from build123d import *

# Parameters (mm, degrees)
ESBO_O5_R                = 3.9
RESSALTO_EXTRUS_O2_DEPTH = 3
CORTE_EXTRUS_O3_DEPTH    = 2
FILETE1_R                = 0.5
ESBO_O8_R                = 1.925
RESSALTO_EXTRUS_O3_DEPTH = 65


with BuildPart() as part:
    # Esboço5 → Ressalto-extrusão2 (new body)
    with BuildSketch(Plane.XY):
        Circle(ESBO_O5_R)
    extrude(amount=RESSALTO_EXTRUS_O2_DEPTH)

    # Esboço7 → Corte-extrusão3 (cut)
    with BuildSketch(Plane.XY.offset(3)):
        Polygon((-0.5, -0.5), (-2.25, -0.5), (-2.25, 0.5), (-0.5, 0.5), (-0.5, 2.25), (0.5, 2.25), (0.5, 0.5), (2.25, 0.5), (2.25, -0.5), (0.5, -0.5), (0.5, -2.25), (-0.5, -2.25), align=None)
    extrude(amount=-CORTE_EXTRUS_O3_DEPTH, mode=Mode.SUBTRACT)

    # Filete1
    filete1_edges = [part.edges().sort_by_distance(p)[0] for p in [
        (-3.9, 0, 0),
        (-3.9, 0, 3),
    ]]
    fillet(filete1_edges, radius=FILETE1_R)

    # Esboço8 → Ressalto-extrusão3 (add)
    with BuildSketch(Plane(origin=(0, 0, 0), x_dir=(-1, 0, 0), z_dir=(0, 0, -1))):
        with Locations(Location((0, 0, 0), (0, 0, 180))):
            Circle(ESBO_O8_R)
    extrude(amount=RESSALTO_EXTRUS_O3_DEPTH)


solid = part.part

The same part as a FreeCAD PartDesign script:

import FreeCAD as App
import Part
import Sketcher


def edges_at(feature, points):
    """Names of the edges that pass closest to the given points."""
    edges = feature.Shape.Edges
    near = lambda p: min(range(len(edges)), key=lambda i: edges[i].distToShape(Part.Vertex(*p))[0])
    return sorted({f"Edge{near(p) + 1}" for p in points})


def add_polygon(sketch, points):
    """Adds a closed chain of lines whose ends are joined by coincident constraints."""
    first, n = sketch.GeometryCount, len(points)
    for a, b in zip(points, points[1:] + points[:1]):
        sketch.addGeometry(Part.LineSegment(App.Vector(*a, 0), App.Vector(*b, 0)), False)
    for i in range(n):
        sketch.addConstraint(Sketcher.Constraint("Coincident", first + i, 2, first + (i + 1) % n, 1))

doc = App.newDocument("Part")
body = doc.addObject("PartDesign::Body", "Body")

# Sketch on XY plane
sketch1 = body.newObject("Sketcher::SketchObject", "Sketch")
sketch1.AttachmentSupport = (doc.getObject("XY_Plane"), [""])
sketch1.MapMode = "FlatFace"
sketch1.addGeometry(Part.Circle(App.Vector(0, 0, 0), App.Vector(0, 0, 1), 3.9), False)
sketch1.addConstraint([
    Sketcher.Constraint("Coincident", 0, 3, -1, 1),
    Sketcher.Constraint("Diameter", 0, 7.8),
])
pad1 = body.newObject("PartDesign::Pad", "Pad")
pad1.Profile = sketch1
pad1.Length = 3

# Sketch on XY plane
sketch2 = body.newObject("Sketcher::SketchObject", "Sketch001")
sketch2.AttachmentSupport = (doc.getObject("XY_Plane"), [""])
sketch2.MapMode = "FlatFace"
sketch2.AttachmentOffset = App.Placement(App.Vector(0, 0, 3), App.Rotation())
add_polygon(sketch2, [(-2.2, -0.5), (-0.5, -0.5), (-0.5, -2.2), (0.5, -2.2), (0.5, -0.5), (2.2, -0.5), (2.2, 0.5), (0.5, 0.5), (0.5, 2.2), (-0.5, 2.2), (-0.5, 0.5), (-2.2, 0.5)])  # lines 0-11
sketch2.addConstraint([
    Sketcher.Constraint("Horizontal", 0),
    Sketcher.Constraint("Vertical", 1),
    Sketcher.Constraint("Horizontal", 2),
    Sketcher.Constraint("Vertical", 3),
    Sketcher.Constraint("Horizontal", 4),
    Sketcher.Constraint("Vertical", 5),
    Sketcher.Constraint("Horizontal", 6),
    Sketcher.Constraint("Vertical", 7),
    Sketcher.Constraint("Horizontal", 8),
    Sketcher.Constraint("Vertical", 9),
    Sketcher.Constraint("Horizontal", 10),
    Sketcher.Constraint("Vertical", 11),
    Sketcher.Constraint("Symmetric", 0, 2, 6, 2, -1, 1),
    Sketcher.Constraint("Symmetric", 2, 2, 8, 2, -1, 1),
    Sketcher.Constraint("Symmetric", 4, 2, 10, 2, -1, 1),
    Sketcher.Constraint("Symmetric", 0, 2, 3, 2, -2),
    Sketcher.Constraint("Equal", 10, 1),
    Sketcher.Constraint("Equal", 8, 5),
    Sketcher.Constraint("DistanceX", 2, 1, 2, 2, 1.0),
    Sketcher.Constraint("DistanceX", 0, 1, 0, 2, 1.75),
])
pocket1 = body.newObject("PartDesign::Pocket", "Pocket")
pocket1.Profile = sketch2
pocket1.Length = 2
doc.recompute()

fillet = body.newObject("PartDesign::Fillet", "Fillet")
fillet.Base = (pocket1, edges_at(pocket1, [(-3.9, 0, 0), (-3.9, 0, 3)]))
fillet.Radius = 0.5

# Sketch on XY plane
sketch3 = body.newObject("Sketcher::SketchObject", "Sketch002")
sketch3.AttachmentSupport = (doc.getObject("XY_Plane"), [""])
sketch3.MapMode = "FlatFace"
sketch3.addGeometry(Part.Circle(App.Vector(0, 0, 0), App.Vector(0, 0, 1), 1.9), False)
sketch3.addConstraint([
    Sketcher.Constraint("Coincident", 0, 3, -1, 1),
    Sketcher.Constraint("Diameter", 0, 3.85),
])
pad2 = body.newObject("PartDesign::Pad", "Pad001")
pad2.Profile = sketch3
pad2.Length = 65
pad2.Reversed = True

doc.recompute()
